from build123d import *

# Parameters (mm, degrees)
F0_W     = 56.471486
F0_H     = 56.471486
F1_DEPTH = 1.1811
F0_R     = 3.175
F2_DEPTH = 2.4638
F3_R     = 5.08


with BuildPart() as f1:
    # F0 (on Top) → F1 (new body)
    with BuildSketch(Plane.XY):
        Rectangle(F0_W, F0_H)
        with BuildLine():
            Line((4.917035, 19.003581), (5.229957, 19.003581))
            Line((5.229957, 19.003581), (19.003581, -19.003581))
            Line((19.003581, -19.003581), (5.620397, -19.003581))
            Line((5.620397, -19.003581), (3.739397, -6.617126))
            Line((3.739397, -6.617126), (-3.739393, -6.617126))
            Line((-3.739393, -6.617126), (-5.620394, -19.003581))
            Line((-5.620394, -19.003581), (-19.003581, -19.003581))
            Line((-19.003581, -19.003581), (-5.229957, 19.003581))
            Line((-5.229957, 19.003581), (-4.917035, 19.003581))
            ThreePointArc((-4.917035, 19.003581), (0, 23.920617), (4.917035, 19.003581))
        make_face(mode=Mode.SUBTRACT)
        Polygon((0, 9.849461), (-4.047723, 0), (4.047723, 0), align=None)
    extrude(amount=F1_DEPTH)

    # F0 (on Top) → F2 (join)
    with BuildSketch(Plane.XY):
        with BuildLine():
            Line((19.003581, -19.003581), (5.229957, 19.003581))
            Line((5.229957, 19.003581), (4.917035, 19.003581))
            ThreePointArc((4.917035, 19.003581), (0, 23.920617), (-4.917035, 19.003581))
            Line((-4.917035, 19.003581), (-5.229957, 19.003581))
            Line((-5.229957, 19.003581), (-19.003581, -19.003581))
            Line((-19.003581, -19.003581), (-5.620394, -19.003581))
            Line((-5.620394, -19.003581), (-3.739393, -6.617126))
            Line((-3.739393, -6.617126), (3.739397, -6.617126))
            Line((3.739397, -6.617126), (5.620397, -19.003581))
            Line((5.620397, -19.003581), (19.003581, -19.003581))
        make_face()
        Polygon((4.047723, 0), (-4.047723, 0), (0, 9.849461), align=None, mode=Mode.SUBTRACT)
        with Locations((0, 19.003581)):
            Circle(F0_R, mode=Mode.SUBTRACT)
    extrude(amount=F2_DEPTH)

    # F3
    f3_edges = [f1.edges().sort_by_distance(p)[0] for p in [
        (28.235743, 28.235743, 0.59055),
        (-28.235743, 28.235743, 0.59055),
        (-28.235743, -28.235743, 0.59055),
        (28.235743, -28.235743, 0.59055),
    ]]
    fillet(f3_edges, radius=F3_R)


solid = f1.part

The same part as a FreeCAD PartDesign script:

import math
import FreeCAD as App
import Part
import Sketcher

V = App.Vector
Q = App.Units.Quantity


def edges_at(feature, points):
    """Names of the edges that pass closest to the given points."""
    edges = feature.Shape.Edges
    near = lambda p: min(range(len(edges)), key=lambda i: edges[i].distToShape(Part.Vertex(*p))[0])
    return sorted({f"Edge{near(p) + 1}" for p in points})


def add_polygon(sketch, points):
    """Adds a closed chain of lines whose ends are joined by coincident constraints."""
    first, n = sketch.GeometryCount, len(points)
    for a, b in zip(points, points[1:] + points[:1]):
        sketch.addGeometry(Part.LineSegment(App.Vector(*a, 0), App.Vector(*b, 0)), False)
    for i in range(n):
        sketch.addConstraint(Sketcher.Constraint("Coincident", first + i, 2, first + (i + 1) % n, 1))

doc = App.newDocument("Part")
params = doc.addObject("Spreadsheet::Sheet", "Params")
for row, (alias, value) in enumerate([
    ("pad1_length", "0.0465 in"),
    ("sketch2_diameter", "0.25 in"),
    ("pad2_length", "0.097 in"),
    ("fillet_radius", "0.2 in"),
], start=1):
    params.set(f"A{row}", alias)
    params.set(f"B{row}", "=" + value)
    params.setAlias(f"B{row}", alias)

body = doc.addObject("PartDesign::Body", "Body")
body.AllowCompound = True

sketch1 = body.newObject("Sketcher::SketchObject", "Sketch")
sketch1.AttachmentSupport = (doc.getObject("XY_Plane"), [""])
sketch1.MapMode = "FlatFace"
add_polygon(sketch1, [(-28.24, 28.24), (-28.24, -28.24), (28.24, -28.24), (28.24, 28.24)])
sketch1.addGeometry(Part.ArcOfCircle(Part.Circle(V(0, 19, 0), V(0, 0, 1), 4.92), math.radians(0), math.radians(180)), False)
sketch1.addGeometry(Part.LineSegment(V(4.92, 19, 0), V(5.23, 19, 0)), False)
sketch1.addGeometry(Part.LineSegment(V(5.23, 19, 0), V(19, -19, 0)), False)
sketch1.addGeometry(Part.LineSegment(V(19, -19, 0), V(5.62, -19, 0)), False)
sketch1.addGeometry(Part.LineSegment(V(5.62, -19, 0), V(3.74, -6.62, 0)), False)
sketch1.addGeometry(Part.LineSegment(V(3.74, -6.62, 0), V(-3.74, -6.62, 0)), False)
sketch1.addGeometry(Part.LineSegment(V(-3.74, -6.62, 0), V(-5.62, -19, 0)), False)
sketch1.addGeometry(Part.LineSegment(V(-5.62, -19, 0), V(-19, -19, 0)), False)
sketch1.addGeometry(Part.LineSegment(V(-19, -19, 0), V(-5.23, 19, 0)), False)
sketch1.addGeometry(Part.LineSegment(V(-5.23, 19, 0), V(-4.92, 19, 0)), False)
add_polygon(sketch1, [(0, 9.85), (-4.05, 0), (4.05, 0)])
sketch1.addConstraint([
    Sketcher.Constraint("Coincident", 4, 1, 5, 1),
    Sketcher.Constraint("Coincident", 5, 2, 6, 1),
    Sketcher.Constraint("Coincident", 6, 2, 7, 1),
    Sketcher.Constraint("Coincident", 7, 2, 8, 1),
    Sketcher.Constraint("Coincident", 8, 2, 9, 1),
    Sketcher.Constraint("Coincident", 9, 2, 10, 1),
    Sketcher.Constraint("Coincident", 10, 2, 11, 1),
    Sketcher.Constraint("Coincident", 11, 2, 12, 1),
    Sketcher.Constraint("Coincident", 12, 2, 13, 1),
    Sketcher.Constraint("Coincident", 13, 2, 4, 2),
    Sketcher.Constraint("Vertical", 0),
    Sketcher.Constraint("Horizontal", 1),
    Sketcher.Constraint("Vertical", 2),
    Sketcher.Constraint("Horizontal", 3),
    Sketcher.Constraint("Horizontal", 5),
    Sketcher.Constraint("Horizontal", 7),
    Sketcher.Constraint("Horizontal", 9),
    Sketcher.Constraint("Horizontal", 11),
    Sketcher.Constraint("Horizontal", 13),
    Sketcher.Constraint("Horizontal", 15),
    Sketcher.Constraint("Symmetric", 0, 2, 2, 2, -1, 1),
    Sketcher.Constraint("Symmetric", 14, 2, 15, 2, -1, 1),
    Sketcher.Constraint("Symmetric", 7, 2, 10, 2, -2),
    Sketcher.Constraint("Symmetric", 5, 2, 12, 2, -2),
    Sketcher.Constraint("PointOnObject", 4, 3, -2),
    Sketcher.Constraint("PointOnObject", 16, 2, -2),
    Sketcher.Constraint("Equal", 3, 0),
    Sketcher.Constraint("Equal", 8, 10),
    Sketcher.Constraint("Equal", 6, 12),
    Sketcher.Constraint("Radius", 4, 4.917035),
    Sketcher.Constraint("DistanceX", 5, 1, 5, 2, 0.312922),
    Sketcher.Constraint("DistanceX", 9, 2, 9, 1, 7.47879),
    Sketcher.Constraint("DistanceX", 3, 2, 5, 2, 33.4657),
    Sketcher.Constraint("DistanceX", 8, 2, 7, 2, 1.881),
    Sketcher.Constraint("DistanceX", 7, 2, 7, 1, 13.383184),
    Sketcher.Constraint("DistanceX", 15, 1, 15, 2, 8.095446),
    Sketcher.Constraint("DistanceY", -1, 1, 4, 1, 19.003581),
    Sketcher.Constraint("DistanceY", 6, 2, -1, 1, 19.003581),
    Sketcher.Constraint("DistanceY", -1, 1, 16, 2, 9.849461),
    Sketcher.Constraint("DistanceY", 4, 3, 2, 2, 9.232161),
    Sketcher.Constraint("DistanceY", 8, 2, 4, 3, 25.620708),
])
pad1 = body.newObject("PartDesign::Pad", "Pad")
pad1.Profile = sketch1
pad1.setExpression("Length", "Params.pad1_length")

sketch2 = body.newObject("Sketcher::SketchObject", "Sketch001")
sketch2.AttachmentSupport = (doc.getObject("XY_Plane"), [""])
sketch2.MapMode = "FlatFace"
sketch2.addGeometry(Part.LineSegment(V(19, -19, 0), V(5.23, 19, 0)), False)
sketch2.addGeometry(Part.LineSegment(V(5.23, 19, 0), V(4.92, 19, 0)), False)
sketch2.addGeometry(Part.ArcOfCircle(Part.Circle(V(0, 19, 0), V(0, 0, 1), 4.92), math.radians(0), math.radians(180)), False)
sketch2.addGeometry(Part.LineSegment(V(-4.92, 19, 0), V(-5.23, 19, 0)), False)
sketch2.addGeometry(Part.LineSegment(V(-5.23, 19, 0), V(-19, -19, 0)), False)
sketch2.addGeometry(Part.LineSegment(V(-19, -19, 0), V(-5.62, -19, 0)), False)
sketch2.addGeometry(Part.LineSegment(V(-5.62, -19, 0), V(-3.74, -6.62, 0)), False)
sketch2.addGeometry(Part.LineSegment(V(-3.74, -6.62, 0), V(3.74, -6.62, 0)), False)
sketch2.addGeometry(Part.LineSegment(V(3.74, -6.62, 0), V(5.62, -19, 0)), False)
sketch2.addGeometry(Part.LineSegment(V(5.62, -19, 0), V(19, -19, 0)), False)
add_polygon(sketch2, [(0, 9.85), (4.05, 0), (-4.05, 0)])
sketch2.addGeometry(Part.Circle(V(0, 19, 0), V(0, 0, 1), 3.17), False)
sketch2.addConstraint([
    Sketcher.Constraint("Coincident", 0, 2, 1, 1),
    Sketcher.Constraint("Coincident", 1, 2, 2, 1),
    Sketcher.Constraint("Coincident", 2, 2, 3, 1),
    Sketcher.Constraint("Coincident", 3, 2, 4, 1),
    Sketcher.Constraint("Coincident", 4, 2, 5, 1),
    Sketcher.Constraint("Coincident", 5, 2, 6, 1),
    Sketcher.Constraint("Coincident", 6, 2, 7, 1),
    Sketcher.Constraint("Coincident", 7, 2, 8, 1),
    Sketcher.Constraint("Coincident", 8, 2, 9, 1),
    Sketcher.Constraint("Coincident", 9, 2, 0, 1),
    Sketcher.Constraint("Horizontal", 1),
    Sketcher.Constraint("Horizontal", 3),
    Sketcher.Constraint("Horizontal", 5),
    Sketcher.Constraint("Horizontal", 7),
    Sketcher.Constraint("Horizontal", 9),
    Sketcher.Constraint("Horizontal", 11),
    Sketcher.Constraint("Coincident", 13, 3, 2, 3),
    Sketcher.Constraint("Symmetric", 10, 2, 11, 2, -1, 1),
    Sketcher.Constraint("Symmetric", 1, 2, 2, 2, -2),
    Sketcher.Constraint("Symmetric", 5, 2, 8, 2, -2),
    Sketcher.Constraint("PointOnObject", 12, 2, -2),
    Sketcher.Constraint("Horizontal", 13, 3, 0, 2),
    Sketcher.Constraint("Equal", 1, 3),
    Sketcher.Constraint("Equal", 0, 4),
    Sketcher.Constraint("Equal", 6, 8),
    Sketcher.Constraint("Diameter", 13, Q("0.25 in")),
    Sketcher.Constraint("Radius", 2, 4.917035),
    Sketcher.Constraint("DistanceX", 1, 2, 1, 1, 0.312922),
    Sketcher.Constraint("DistanceX", 7, 1, 7, 2, 7.47879),
    Sketcher.Constraint("DistanceX", 5, 2, 6, 2, 1.881001),
    Sketcher.Constraint("DistanceX", 5, 1, 5, 2, 13.383187),
    Sketcher.Constraint("DistanceX", 11, 2, 11, 1, 8.095446),
    Sketcher.Constraint("DistanceY", -1, 1, 13, 3, 19.003581),
    Sketcher.Constraint("DistanceY", 4, 2, -1, 1, 19.003581),
    Sketcher.Constraint("DistanceY", -1, 1, 12, 2, 9.849461),
    Sketcher.Constraint("Distance", 6, 12.528465),
])
sketch2.setExpression("Constraints[28]", "Params.sketch2_diameter")
pad2 = body.newObject("PartDesign::Pad", "Pad001")
pad2.Profile = sketch2
pad2.setExpression("Length", "Params.pad2_length")
doc.recompute()

fillet = body.newObject("PartDesign::Fillet", "Fillet")
fillet.Base = (pad2, edges_at(pad2, [
    (28.236, 28.236, 0.591),
    (-28.236, 28.236, 0.591),
    (-28.236, -28.236, 0.591),
    (28.236, -28.236, 0.591),
]))
fillet.setExpression("Radius", "Params.fillet_radius")

doc.recompute()
